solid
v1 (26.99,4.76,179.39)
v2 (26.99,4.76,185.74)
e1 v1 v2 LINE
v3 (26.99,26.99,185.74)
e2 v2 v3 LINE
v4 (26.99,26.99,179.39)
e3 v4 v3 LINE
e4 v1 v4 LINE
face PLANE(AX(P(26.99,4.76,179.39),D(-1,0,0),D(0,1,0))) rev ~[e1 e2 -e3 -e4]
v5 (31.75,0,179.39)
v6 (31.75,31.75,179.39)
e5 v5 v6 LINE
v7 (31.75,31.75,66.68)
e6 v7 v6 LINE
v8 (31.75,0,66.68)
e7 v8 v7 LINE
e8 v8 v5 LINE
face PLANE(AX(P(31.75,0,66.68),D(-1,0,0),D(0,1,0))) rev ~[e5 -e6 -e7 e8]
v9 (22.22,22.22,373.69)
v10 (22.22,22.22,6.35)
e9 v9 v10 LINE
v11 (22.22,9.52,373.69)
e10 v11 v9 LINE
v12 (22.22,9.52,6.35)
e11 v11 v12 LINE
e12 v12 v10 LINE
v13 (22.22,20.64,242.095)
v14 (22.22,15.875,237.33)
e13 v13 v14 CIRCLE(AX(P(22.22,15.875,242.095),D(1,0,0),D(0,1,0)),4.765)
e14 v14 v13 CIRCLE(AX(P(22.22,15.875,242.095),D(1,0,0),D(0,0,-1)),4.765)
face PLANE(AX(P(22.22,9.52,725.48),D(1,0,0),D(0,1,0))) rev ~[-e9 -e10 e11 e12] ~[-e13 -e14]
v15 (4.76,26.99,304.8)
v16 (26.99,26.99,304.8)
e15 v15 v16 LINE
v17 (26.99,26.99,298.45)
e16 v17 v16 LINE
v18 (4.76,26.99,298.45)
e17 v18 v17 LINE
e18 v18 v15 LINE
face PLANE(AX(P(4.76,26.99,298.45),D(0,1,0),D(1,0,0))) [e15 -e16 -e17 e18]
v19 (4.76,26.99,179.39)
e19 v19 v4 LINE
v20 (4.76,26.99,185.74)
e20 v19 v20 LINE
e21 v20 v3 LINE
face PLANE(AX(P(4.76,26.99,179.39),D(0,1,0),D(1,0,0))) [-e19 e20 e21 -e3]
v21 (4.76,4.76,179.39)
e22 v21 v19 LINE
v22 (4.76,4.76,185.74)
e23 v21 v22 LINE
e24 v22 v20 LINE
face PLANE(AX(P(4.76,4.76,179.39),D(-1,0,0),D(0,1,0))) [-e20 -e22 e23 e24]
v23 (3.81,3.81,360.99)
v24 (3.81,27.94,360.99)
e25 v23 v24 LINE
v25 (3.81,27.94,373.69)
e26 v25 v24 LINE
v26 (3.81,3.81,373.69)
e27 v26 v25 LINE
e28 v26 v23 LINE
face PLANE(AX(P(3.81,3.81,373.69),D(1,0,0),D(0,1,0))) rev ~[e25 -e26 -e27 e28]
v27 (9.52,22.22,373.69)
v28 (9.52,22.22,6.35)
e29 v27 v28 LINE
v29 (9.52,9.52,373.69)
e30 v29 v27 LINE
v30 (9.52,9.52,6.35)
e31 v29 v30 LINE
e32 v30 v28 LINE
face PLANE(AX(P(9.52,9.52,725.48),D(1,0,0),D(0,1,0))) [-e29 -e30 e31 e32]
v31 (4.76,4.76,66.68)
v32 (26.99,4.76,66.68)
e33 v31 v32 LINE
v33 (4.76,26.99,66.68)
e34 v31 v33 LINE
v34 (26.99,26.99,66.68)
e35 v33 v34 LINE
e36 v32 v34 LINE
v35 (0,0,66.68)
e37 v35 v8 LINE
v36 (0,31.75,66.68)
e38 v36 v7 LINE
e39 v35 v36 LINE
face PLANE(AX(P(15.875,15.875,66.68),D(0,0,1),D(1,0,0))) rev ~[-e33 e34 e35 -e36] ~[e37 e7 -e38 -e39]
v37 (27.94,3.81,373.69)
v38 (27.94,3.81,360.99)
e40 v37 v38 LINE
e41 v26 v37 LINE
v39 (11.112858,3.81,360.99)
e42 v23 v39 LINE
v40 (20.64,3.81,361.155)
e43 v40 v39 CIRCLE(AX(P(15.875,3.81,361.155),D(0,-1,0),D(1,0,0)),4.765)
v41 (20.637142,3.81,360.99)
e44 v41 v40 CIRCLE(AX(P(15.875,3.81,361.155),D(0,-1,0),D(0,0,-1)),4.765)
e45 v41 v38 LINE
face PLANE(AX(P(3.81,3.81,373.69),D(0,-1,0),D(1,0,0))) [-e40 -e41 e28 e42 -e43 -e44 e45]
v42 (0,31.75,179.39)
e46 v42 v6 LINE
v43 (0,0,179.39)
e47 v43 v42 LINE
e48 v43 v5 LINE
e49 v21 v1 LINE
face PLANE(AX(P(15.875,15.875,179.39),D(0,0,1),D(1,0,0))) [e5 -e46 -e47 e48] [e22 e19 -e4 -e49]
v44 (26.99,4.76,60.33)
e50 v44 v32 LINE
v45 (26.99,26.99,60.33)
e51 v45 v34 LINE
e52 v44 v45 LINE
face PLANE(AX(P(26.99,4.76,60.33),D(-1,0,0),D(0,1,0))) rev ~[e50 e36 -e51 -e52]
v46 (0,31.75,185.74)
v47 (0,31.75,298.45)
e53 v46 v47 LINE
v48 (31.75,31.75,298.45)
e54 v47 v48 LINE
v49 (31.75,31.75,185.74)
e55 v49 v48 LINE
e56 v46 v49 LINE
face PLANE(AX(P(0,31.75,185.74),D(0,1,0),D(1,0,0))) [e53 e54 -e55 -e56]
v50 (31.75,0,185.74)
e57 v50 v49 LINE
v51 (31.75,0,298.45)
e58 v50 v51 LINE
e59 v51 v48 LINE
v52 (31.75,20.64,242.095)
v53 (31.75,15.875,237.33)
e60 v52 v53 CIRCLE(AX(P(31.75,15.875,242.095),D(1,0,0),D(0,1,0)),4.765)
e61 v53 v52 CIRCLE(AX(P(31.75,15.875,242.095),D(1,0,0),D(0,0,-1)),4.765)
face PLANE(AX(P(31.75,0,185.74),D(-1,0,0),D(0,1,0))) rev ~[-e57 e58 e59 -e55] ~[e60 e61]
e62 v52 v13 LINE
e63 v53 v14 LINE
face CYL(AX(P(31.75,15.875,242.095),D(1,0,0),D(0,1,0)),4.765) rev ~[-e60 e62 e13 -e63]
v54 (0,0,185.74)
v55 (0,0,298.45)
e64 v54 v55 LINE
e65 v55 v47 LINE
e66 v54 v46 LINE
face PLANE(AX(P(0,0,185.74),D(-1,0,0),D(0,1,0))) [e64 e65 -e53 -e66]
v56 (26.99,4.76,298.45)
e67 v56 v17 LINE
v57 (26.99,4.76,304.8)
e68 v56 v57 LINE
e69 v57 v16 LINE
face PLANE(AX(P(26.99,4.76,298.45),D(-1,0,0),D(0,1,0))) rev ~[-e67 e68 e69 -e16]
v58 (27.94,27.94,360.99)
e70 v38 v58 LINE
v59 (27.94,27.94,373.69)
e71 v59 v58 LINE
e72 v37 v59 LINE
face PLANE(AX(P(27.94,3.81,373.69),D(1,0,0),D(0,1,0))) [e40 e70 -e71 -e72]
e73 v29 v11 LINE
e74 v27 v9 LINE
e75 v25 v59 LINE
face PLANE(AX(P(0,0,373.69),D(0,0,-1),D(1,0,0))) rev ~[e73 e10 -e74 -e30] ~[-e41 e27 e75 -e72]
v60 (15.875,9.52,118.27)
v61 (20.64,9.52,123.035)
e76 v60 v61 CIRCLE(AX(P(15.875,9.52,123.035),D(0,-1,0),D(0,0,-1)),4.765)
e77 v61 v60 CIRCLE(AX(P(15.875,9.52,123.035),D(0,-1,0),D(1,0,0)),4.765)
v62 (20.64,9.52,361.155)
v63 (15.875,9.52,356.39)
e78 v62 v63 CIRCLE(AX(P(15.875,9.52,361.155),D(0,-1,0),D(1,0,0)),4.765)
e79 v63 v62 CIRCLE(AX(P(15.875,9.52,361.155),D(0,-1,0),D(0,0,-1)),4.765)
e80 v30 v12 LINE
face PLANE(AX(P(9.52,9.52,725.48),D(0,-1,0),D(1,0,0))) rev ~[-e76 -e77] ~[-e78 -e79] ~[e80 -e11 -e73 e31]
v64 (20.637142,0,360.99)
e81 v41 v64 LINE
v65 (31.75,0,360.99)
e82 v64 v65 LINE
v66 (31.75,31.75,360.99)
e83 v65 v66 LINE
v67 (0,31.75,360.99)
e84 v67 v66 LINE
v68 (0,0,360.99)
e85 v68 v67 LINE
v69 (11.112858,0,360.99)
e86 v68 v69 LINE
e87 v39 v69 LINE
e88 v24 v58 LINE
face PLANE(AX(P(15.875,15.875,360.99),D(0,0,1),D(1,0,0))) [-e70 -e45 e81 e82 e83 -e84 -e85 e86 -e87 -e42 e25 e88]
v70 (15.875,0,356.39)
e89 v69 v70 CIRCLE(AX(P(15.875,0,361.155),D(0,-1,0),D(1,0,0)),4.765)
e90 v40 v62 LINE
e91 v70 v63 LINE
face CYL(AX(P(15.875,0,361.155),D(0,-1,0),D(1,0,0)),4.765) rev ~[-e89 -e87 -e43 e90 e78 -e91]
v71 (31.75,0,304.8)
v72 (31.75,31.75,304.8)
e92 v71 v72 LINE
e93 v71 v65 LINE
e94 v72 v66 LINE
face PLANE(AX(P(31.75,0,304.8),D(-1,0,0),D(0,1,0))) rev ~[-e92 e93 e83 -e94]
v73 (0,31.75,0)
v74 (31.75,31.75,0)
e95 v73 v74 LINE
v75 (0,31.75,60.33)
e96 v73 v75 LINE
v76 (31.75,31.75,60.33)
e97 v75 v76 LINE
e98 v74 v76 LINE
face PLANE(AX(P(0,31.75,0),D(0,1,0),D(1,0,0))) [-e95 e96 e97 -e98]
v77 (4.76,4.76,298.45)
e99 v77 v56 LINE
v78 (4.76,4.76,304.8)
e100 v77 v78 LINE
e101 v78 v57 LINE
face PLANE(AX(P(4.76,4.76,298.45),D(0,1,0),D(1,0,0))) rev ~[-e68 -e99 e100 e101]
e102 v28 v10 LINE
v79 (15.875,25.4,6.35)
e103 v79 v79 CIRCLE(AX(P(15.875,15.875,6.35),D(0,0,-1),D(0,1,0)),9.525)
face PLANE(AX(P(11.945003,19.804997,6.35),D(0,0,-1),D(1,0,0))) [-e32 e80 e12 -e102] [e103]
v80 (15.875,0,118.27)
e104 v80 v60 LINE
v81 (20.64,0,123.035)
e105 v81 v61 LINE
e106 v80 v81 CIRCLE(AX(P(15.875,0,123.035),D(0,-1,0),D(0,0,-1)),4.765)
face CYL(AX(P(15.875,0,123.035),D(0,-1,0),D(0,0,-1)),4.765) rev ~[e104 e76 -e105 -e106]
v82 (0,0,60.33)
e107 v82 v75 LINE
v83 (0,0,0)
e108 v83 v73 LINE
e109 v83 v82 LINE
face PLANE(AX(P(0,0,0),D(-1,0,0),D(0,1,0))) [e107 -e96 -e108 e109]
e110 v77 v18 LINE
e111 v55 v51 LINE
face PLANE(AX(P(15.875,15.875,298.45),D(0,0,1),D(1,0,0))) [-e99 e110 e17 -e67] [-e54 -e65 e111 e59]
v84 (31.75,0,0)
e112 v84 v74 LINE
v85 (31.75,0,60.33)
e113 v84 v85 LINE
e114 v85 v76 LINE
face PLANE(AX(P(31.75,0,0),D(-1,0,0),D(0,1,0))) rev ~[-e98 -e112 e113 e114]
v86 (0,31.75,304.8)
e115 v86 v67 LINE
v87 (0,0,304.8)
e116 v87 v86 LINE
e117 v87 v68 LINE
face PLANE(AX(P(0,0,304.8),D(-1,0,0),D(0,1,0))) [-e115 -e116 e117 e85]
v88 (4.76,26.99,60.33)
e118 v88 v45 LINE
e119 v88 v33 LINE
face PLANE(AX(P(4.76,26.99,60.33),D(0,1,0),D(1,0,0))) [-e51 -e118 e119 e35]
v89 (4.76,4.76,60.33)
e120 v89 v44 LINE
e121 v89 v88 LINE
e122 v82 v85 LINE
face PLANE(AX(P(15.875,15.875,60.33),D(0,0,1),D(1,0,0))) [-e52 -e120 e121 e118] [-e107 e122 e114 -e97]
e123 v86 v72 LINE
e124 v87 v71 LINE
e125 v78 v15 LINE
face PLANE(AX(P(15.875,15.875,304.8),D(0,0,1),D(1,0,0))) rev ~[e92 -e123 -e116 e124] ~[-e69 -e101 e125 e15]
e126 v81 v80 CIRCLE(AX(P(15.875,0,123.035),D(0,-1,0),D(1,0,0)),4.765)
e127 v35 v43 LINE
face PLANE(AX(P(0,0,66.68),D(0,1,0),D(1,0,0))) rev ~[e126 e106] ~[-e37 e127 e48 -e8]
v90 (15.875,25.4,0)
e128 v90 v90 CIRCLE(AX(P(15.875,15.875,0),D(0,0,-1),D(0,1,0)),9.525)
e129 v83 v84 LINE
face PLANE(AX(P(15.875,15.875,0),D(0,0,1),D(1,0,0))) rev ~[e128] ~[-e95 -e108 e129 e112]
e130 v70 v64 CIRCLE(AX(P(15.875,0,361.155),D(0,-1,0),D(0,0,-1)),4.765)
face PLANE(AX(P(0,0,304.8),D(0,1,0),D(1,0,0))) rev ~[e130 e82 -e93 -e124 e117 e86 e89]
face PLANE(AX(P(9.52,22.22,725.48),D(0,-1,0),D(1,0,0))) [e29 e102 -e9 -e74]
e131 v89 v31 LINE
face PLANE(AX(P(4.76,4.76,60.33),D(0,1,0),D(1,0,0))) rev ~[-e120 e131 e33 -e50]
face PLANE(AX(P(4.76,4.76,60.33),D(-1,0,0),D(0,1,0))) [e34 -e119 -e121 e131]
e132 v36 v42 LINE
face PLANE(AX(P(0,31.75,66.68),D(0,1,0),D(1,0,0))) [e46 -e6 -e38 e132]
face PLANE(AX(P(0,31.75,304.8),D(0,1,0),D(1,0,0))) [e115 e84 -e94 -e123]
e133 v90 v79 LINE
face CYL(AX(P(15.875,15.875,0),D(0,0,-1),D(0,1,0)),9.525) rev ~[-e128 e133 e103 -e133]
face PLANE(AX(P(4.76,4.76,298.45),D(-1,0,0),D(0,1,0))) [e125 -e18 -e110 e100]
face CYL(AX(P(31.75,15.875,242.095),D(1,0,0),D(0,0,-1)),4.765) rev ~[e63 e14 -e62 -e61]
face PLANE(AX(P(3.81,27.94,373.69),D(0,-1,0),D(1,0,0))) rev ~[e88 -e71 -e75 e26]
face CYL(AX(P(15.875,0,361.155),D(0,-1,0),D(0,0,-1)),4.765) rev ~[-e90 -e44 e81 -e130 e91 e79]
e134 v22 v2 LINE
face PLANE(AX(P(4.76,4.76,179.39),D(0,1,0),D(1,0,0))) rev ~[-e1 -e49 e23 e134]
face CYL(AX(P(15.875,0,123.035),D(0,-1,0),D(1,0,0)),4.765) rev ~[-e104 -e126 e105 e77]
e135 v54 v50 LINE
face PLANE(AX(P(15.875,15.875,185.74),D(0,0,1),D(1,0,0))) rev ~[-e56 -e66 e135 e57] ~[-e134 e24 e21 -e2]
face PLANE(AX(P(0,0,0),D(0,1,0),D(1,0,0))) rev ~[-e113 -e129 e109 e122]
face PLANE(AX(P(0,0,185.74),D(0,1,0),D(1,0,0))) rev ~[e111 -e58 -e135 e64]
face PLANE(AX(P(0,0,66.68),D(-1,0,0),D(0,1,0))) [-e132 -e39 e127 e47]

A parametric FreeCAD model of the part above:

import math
import FreeCAD as App
import Part
import Sketcher

V = App.Vector
Q = App.Units.Quantity

doc = App.newDocument("Part")
body = doc.addObject("PartDesign::Body", "Body")

# Sketch on XY plane
sketch1 = body.newObject("Sketcher::SketchObject", "Sketch")
sketch1.AttachmentSupport = (doc.getObject("XY_Plane"), [""])
sketch1.MapMode = "FlatFace"
sketch1.addGeometry(Part.LineSegment(V(0, 32, 0), V(0, 0, 0)), False)
sketch1.addGeometry(Part.LineSegment(V(0, 0, 0), V(32, 0, 0)), False)
sketch1.addGeometry(Part.LineSegment(V(32, 0, 0), V(32, 32, 0)), False)
sketch1.addGeometry(Part.LineSegment(V(32, 32, 0), V(0, 32, 0)), False)
sketch1.addConstraint(Sketcher.Constraint("Coincident", 0, 2, 1, 1))
sketch1.addConstraint(Sketcher.Constraint("Coincident", 1, 2, 2, 1))
sketch1.addConstraint(Sketcher.Constraint("Coincident", 2, 2, 3, 1))
sketch1.addConstraint(Sketcher.Constraint("Coincident", 3, 2, 0, 1))
sketch1.addConstraint(Sketcher.Constraint("Vertical", 0))
sketch1.addConstraint(Sketcher.Constraint("Horizontal", 1))
sketch1.addConstraint(Sketcher.Constraint("Vertical", 2))
sketch1.addConstraint(Sketcher.Constraint("Horizontal", 3))
sketch1.addConstraint(Sketcher.Constraint("Coincident", 0, 2, -1, 1))
sketch1.addConstraint(Sketcher.Constraint("Equal", 3, 0))
sketch1.addConstraint(Sketcher.Constraint("DistanceX", 1, 1, 1, 2, Q("1.25 in")))
pad1 = body.newObject("PartDesign::Pad", "Pad")
pad1.Profile = sketch1
pad1.Length = 60.33

# Sketch on XY plane
sketch2 = body.newObject("Sketcher::SketchObject", "Sketch001")
sketch2.AttachmentSupport = (doc.getObject("XY_Plane"), [""])
sketch2.MapMode = "FlatFace"
sketch2.AttachmentOffset = App.Placement(V(0, 0, 60.33), App.Rotation())
sketch2.addGeometry(Part.LineSegment(V(5, 27, 0), V(5, 5, 0)), False)
sketch2.addGeometry(Part.LineSegment(V(5, 5, 0), V(27, 5, 0)), False)
sketch2.addGeometry(Part.LineSegment(V(27, 5, 0), V(27, 27, 0)), False)
sketch2.addGeometry(Part.LineSegment(V(27, 27, 0), V(5, 27, 0)), False)
sketch2.addConstraint(Sketcher.Constraint("Coincident", 0, 2, 1, 1))
sketch2.addConstraint(Sketcher.Constraint("Coincident", 1, 2, 2, 1))
sketch2.addConstraint(Sketcher.Constraint("Coincident", 2, 2, 3, 1))
sketch2.addConstraint(Sketcher.Constraint("Coincident", 3, 2, 0, 1))
sketch2.addConstraint(Sketcher.Constraint("Vertical", 0))
sketch2.addConstraint(Sketcher.Constraint("Horizontal", 1))
sketch2.addConstraint(Sketcher.Constraint("Vertical", 2))
sketch2.addConstraint(Sketcher.Constraint("Horizontal", 3))
sketch2.addConstraint(Sketcher.Constraint("Equal", 3, 0))
sketch2.addConstraint(Sketcher.Constraint("DistanceX", 1, 1, 1, 2, Q("22.23 mm")))
sketch2.addConstraint(Sketcher.Constraint("DistanceX", -1, 1, 0, 2, Q("4.76 mm")))
sketch2.addConstraint(Sketcher.Constraint("DistanceY", -1, 1, 0, 2, Q("4.76 mm")))
pad2 = body.newObject("PartDesign::Pad", "Pad001")
pad2.Profile = sketch2
pad2.Length = Q("0.25 in")

# Sketch on XY plane
sketch3 = body.newObject("Sketcher::SketchObject", "Sketch002")
sketch3.AttachmentSupport = (doc.getObject("XY_Plane"), [""])
sketch3.MapMode = "FlatFace"
sketch3.AttachmentOffset = App.Placement(V(0, 0, 66.68), App.Rotation())
sketch3.addGeometry(Part.LineSegment(V(0, 32, 0), V(0, 0, 0)), False)
sketch3.addGeometry(Part.LineSegment(V(0, 0, 0), V(32, 0, 0)), False)
sketch3.addGeometry(Part.LineSegment(V(32, 0, 0), V(32, 32, 0)), False)
sketch3.addGeometry(Part.LineSegment(V(32, 32, 0), V(0, 32, 0)), False)
sketch3.addConstraint(Sketcher.Constraint("Coincident", 0, 2, 1, 1))
sketch3.addConstraint(Sketcher.Constraint("Coincident", 1, 2, 2, 1))
sketch3.addConstraint(Sketcher.Constraint("Coincident", 2, 2, 3, 1))
sketch3.addConstraint(Sketcher.Constraint("Coincident", 3, 2, 0, 1))
sketch3.addConstraint(Sketcher.Constraint("Vertical", 0))
sketch3.addConstraint(Sketcher.Constraint("Horizontal", 1))
sketch3.addConstraint(Sketcher.Constraint("Vertical", 2))
sketch3.addConstraint(Sketcher.Constraint("Horizontal", 3))
sketch3.addConstraint(Sketcher.Constraint("Coincident", 0, 2, -1, 1))
sketch3.addConstraint(Sketcher.Constraint("Equal", 3, 0))
sketch3.addConstraint(Sketcher.Constraint("DistanceX", 1, 1, 1, 2, Q("1.25 in")))
pad3 = body.newObject("PartDesign::Pad", "Pad002")
pad3.Profile = sketch3
pad3.Length = 112.71

# Sketch on XY plane
sketch4 = body.newObject("Sketcher::SketchObject", "Sketch003")
sketch4.AttachmentSupport = (doc.getObject("XY_Plane"), [""])
sketch4.MapMode = "FlatFace"
sketch4.AttachmentOffset = App.Placement(V(0, 0, 179.39), App.Rotation())
sketch4.addGeometry(Part.LineSegment(V(5, 27, 0), V(5, 5, 0)), False)
sketch4.addGeometry(Part.LineSegment(V(5, 5, 0), V(27, 5, 0)), False)
sketch4.addGeometry(Part.LineSegment(V(27, 5, 0), V(27, 27, 0)), False)
sketch4.addGeometry(Part.LineSegment(V(27, 27, 0), V(5, 27, 0)), False)
sketch4.addConstraint(Sketcher.Constraint("Coincident", 0, 2, 1, 1))
sketch4.addConstraint(Sketcher.Constraint("Coincident", 1, 2, 2, 1))
sketch4.addConstraint(Sketcher.Constraint("Coincident", 2, 2, 3, 1))
sketch4.addConstraint(Sketcher.Constraint("Coincident", 3, 2, 0, 1))
sketch4.addConstraint(Sketcher.Constraint("Vertical", 0))
sketch4.addConstraint(Sketcher.Constraint("Horizontal", 1))
sketch4.addConstraint(Sketcher.Constraint("Vertical", 2))
sketch4.addConstraint(Sketcher.Constraint("Horizontal", 3))
sketch4.addConstraint(Sketcher.Constraint("Equal", 3, 0))
sketch4.addConstraint(Sketcher.Constraint("DistanceX", 1, 1, 1, 2, Q("22.23 mm")))
sketch4.addConstraint(Sketcher.Constraint("DistanceX", -1, 1, 0, 2, Q("4.76 mm")))
sketch4.addConstraint(Sketcher.Constraint("DistanceY", -1, 1, 0, 2, Q("4.76 mm")))
pad4 = body.newObject("PartDesign::Pad", "Pad003")
pad4.Profile = sketch4
pad4.Length = Q("0.25 in")

# Sketch on XY plane
sketch5 = body.newObject("Sketcher::SketchObject", "Sketch004")
sketch5.AttachmentSupport = (doc.getObject("XY_Plane"), [""])
sketch5.MapMode = "FlatFace"
sketch5.AttachmentOffset = App.Placement(V(0, 0, 185.74), App.Rotation())
sketch5.addGeometry(Part.LineSegment(V(0, 32, 0), V(0, 0, 0)), False)
sketch5.addGeometry(Part.LineSegment(V(0, 0, 0), V(32, 0, 0)), False)
sketch5.addGeometry(Part.LineSegment(V(32, 0, 0), V(32, 32, 0)), False)
sketch5.addGeometry(Part.LineSegment(V(32, 32, 0), V(0, 32, 0)), False)
sketch5.addConstraint(Sketcher.Constraint("Coincident", 0, 2, 1, 1))
sketch5.addConstraint(Sketcher.Constraint("Coincident", 1, 2, 2, 1))
sketch5.addConstraint(Sketcher.Constraint("Coincident", 2, 2, 3, 1))
sketch5.addConstraint(Sketcher.Constraint("Coincident", 3, 2, 0, 1))
sketch5.addConstraint(Sketcher.Constraint("Vertical", 0))
sketch5.addConstraint(Sketcher.Constraint("Horizontal", 1))
sketch5.addConstraint(Sketcher.Constraint("Vertical", 2))
sketch5.addConstraint(Sketcher.Constraint("Horizontal", 3))
sketch5.addConstraint(Sketcher.Constraint("Coincident", 0, 2, -1, 1))
sketch5.addConstraint(Sketcher.Constraint("Equal", 3, 0))
sketch5.addConstraint(Sketcher.Constraint("DistanceX", 1, 1, 1, 2, Q("1.25 in")))
pad5 = body.newObject("PartDesign::Pad", "Pad004")
pad5.Profile = sketch5
pad5.Length = 112.71

# Sketch on XY plane
sketch6 = body.newObject("Sketcher::SketchObject", "Sketch005")
sketch6.AttachmentSupport = (doc.getObject("XY_Plane"), [""])
sketch6.MapMode = "FlatFace"
sketch6.AttachmentOffset = App.Placement(V(0, 0, 11.75 * 25.4), App.Rotation())
sketch6.addGeometry(Part.LineSegment(V(5, 27, 0), V(5, 5, 0)), False)
sketch6.addGeometry(Part.LineSegment(V(5, 5, 0), V(27, 5, 0)), False)
sketch6.addGeometry(Part.LineSegment(V(27, 5, 0), V(27, 27, 0)), False)
sketch6.addGeometry(Part.LineSegment(V(27, 27, 0), V(5, 27, 0)), False)
sketch6.addConstraint(Sketcher.Constraint("Coincident", 0, 2, 1, 1))
sketch6.addConstraint(Sketcher.Constraint("Coincident", 1, 2, 2, 1))
sketch6.addConstraint(Sketcher.Constraint("Coincident", 2, 2, 3, 1))
sketch6.addConstraint(Sketcher.Constraint("Coincident", 3, 2, 0, 1))
sketch6.addConstraint(Sketcher.Constraint("Vertical", 0))
sketch6.addConstraint(Sketcher.Constraint("Horizontal", 1))
sketch6.addConstraint(Sketcher.Constraint("Vertical", 2))
sketch6.addConstraint(Sketcher.Constraint("Horizontal", 3))
sketch6.addConstraint(Sketcher.Constraint("Equal", 3, 0))
sketch6.addConstraint(Sketcher.Constraint("DistanceX", 1, 1, 1, 2, Q("22.23 mm")))
sketch6.addConstraint(Sketcher.Constraint("DistanceX", -1, 1, 0, 2, Q("4.76 mm")))
sketch6.addConstraint(Sketcher.Constraint("DistanceY", -1, 1, 0, 2, Q("4.76 mm")))
pad6 = body.newObject("PartDesign::Pad", "Pad005")
pad6.Profile = sketch6
pad6.Length = Q("0.25 in")

# Sketch on XY plane
sketch7 = body.newObject("Sketcher::SketchObject", "Sketch006")
sketch7.AttachmentSupport = (doc.getObject("XY_Plane"), [""])
sketch7.MapMode = "FlatFace"
sketch7.AttachmentOffset = App.Placement(V(0, 0, 12 * 25.4), App.Rotation())
sketch7.addGeometry(Part.LineSegment(V(0, 32, 0), V(0, 0, 0)), False)
sketch7.addGeometry(Part.LineSegment(V(0, 0, 0), V(32, 0, 0)), False)
sketch7.addGeometry(Part.LineSegment(V(32, 0, 0), V(32, 32, 0)), False)
sketch7.addGeometry(Part.LineSegment(V(32, 32, 0), V(0, 32, 0)), False)
sketch7.addConstraint(Sketcher.Constraint("Coincident", 0, 2, 1, 1))
sketch7.addConstraint(Sketcher.Constraint("Coincident", 1, 2, 2, 1))
sketch7.addConstraint(Sketcher.Constraint("Coincident", 2, 2, 3, 1))
sketch7.addConstraint(Sketcher.Constraint("Coincident", 3, 2, 0, 1))
sketch7.addConstraint(Sketcher.Constraint("Vertical", 0))
sketch7.addConstraint(Sketcher.Constraint("Horizontal", 1))
sketch7.addConstraint(Sketcher.Constraint("Vertical", 2))
sketch7.addConstraint(Sketcher.Constraint("Horizontal", 3))
sketch7.addConstraint(Sketcher.Constraint("Coincident", 0, 2, -1, 1))
sketch7.addConstraint(Sketcher.Constraint("Equal", 3, 0))
sketch7.addConstraint(Sketcher.Constraint("DistanceX", 1, 1, 1, 2, Q("1.25 in")))
pad7 = body.newObject("PartDesign::Pad", "Pad006")
pad7.Profile = sketch7
pad7.Length = 112.71

# Sketch on XY plane
sketch8 = body.newObject("Sketcher::SketchObject", "Sketch007")
sketch8.AttachmentSupport = (doc.getObject("XY_Plane"), [""])
sketch8.MapMode = "FlatFace"
sketch8.AttachmentOffset = App.Placement(V(0, 0, 417.51), App.Rotation())
sketch8.addGeometry(Part.LineSegment(V(5, 27, 0), V(5, 5, 0)), False)
sketch8.addGeometry(Part.LineSegment(V(5, 5, 0), V(27, 5, 0)), False)
sketch8.addGeometry(Part.LineSegment(V(27, 5, 0), V(27, 27, 0)), False)
sketch8.addGeometry(Part.LineSegment(V(27, 27, 0), V(5, 27, 0)), False)
sketch8.addConstraint(Sketcher.Constraint("Coincident", 0, 2, 1, 1))
sketch8.addConstraint(Sketcher.Constraint("Coincident", 1, 2, 2, 1))
sketch8.addConstraint(Sketcher.Constraint("Coincident", 2, 2, 3, 1))
sketch8.addConstraint(Sketcher.Constraint("Coincident", 3, 2, 0, 1))
sketch8.addConstraint(Sketcher.Constraint("Vertical", 0))
sketch8.addConstraint(Sketcher.Constraint("Horizontal", 1))
sketch8.addConstraint(Sketcher.Constraint("Vertical", 2))
sketch8.addConstraint(Sketcher.Constraint("Horizontal", 3))
sketch8.addConstraint(Sketcher.Constraint("Equal", 3, 0))
sketch8.addConstraint(Sketcher.Constraint("DistanceX", 1, 1, 1, 2, Q("22.23 mm")))
sketch8.addConstraint(Sketcher.Constraint("DistanceX", -1, 1, 0, 2, Q("4.76 mm")))
sketch8.addConstraint(Sketcher.Constraint("DistanceY", -1, 1, 0, 2, Q("4.76 mm")))
pad8 = body.newObject("PartDesign::Pad", "Pad007")
pad8.Profile = sketch8
pad8.Length = Q("0.25 in")

# Sketch on XY plane
sketch9 = body.newObject("Sketcher::SketchObject", "Sketch008")
sketch9.AttachmentSupport = (doc.getObject("XY_Plane"), [""])
sketch9.MapMode = "FlatFace"
sketch9.AttachmentOffset = App.Placement(V(0, 0, 423.86), App.Rotation())
sketch9.addGeometry(Part.LineSegment(V(0, 32, 0), V(0, 0, 0)), False)
sketch9.addGeometry(Part.LineSegment(V(0, 0, 0), V(32, 0, 0)), False)
sketch9.addGeometry(Part.LineSegment(V(32, 0, 0), V(32, 32, 0)), False)
sketch9.addGeometry(Part.LineSegment(V(32, 32, 0), V(0, 32, 0)), False)
sketch9.addConstraint(Sketcher.Constraint("Coincident", 0, 2, 1, 1))
sketch9.addConstraint(Sketcher.Constraint("Coincident", 1, 2, 2, 1))
sketch9.addConstraint(Sketcher.Constraint("Coincident", 2, 2, 3, 1))
sketch9.addConstraint(Sketcher.Constraint("Coincident", 3, 2, 0, 1))
sketch9.addConstraint(Sketcher.Constraint("Vertical", 0))
sketch9.addConstraint(Sketcher.Constraint("Horizontal", 1))
sketch9.addConstraint(Sketcher.Constraint("Vertical", 2))
sketch9.addConstraint(Sketcher.Constraint("Horizontal", 3))
sketch9.addConstraint(Sketcher.Constraint("Coincident", 0, 2, -1, 1))
sketch9.addConstraint(Sketcher.Constraint("Equal", 3, 0))
sketch9.addConstraint(Sketcher.Constraint("DistanceX", 1, 1, 1, 2, Q("1.25 in")))
pad9 = body.newObject("PartDesign::Pad", "Pad008")
pad9.Profile = sketch9
pad9.Length = 112.71

# Sketch on XY plane
sketch10 = body.newObject("Sketcher::SketchObject", "Sketch009")
sketch10.AttachmentSupport = (doc.getObject("XY_Plane"), [""])
sketch10.MapMode = "FlatFace"
sketch10.AttachmentOffset = App.Placement(V(0, 0, 536.57), App.Rotation())
sketch10.addGeometry(Part.LineSegment(V(5, 27, 0), V(5, 5, 0)), False)
sketch10.addGeometry(Part.LineSegment(V(5, 5, 0), V(27, 5, 0)), False)
sketch10.addGeometry(Part.LineSegment(V(27, 5, 0), V(27, 27, 0)), False)
sketch10.addGeometry(Part.LineSegment(V(27, 27, 0), V(5, 27, 0)), False)
sketch10.addConstraint(Sketcher.Constraint("Coincident", 0, 2, 1, 1))
sketch10.addConstraint(Sketcher.Constraint("Coincident", 1, 2, 2, 1))
sketch10.addConstraint(Sketcher.Constraint("Coincident", 2, 2, 3, 1))
sketch10.addConstraint(Sketcher.Constraint("Coincident", 3, 2, 0, 1))
sketch10.addConstraint(Sketcher.Constraint("Vertical", 0))
sketch10.addConstraint(Sketcher.Constraint("Horizontal", 1))
sketch10.addConstraint(Sketcher.Constraint("Vertical", 2))
sketch10.addConstraint(Sketcher.Constraint("Horizontal", 3))
sketch10.addConstraint(Sketcher.Constraint("Equal", 3, 0))
sketch10.addConstraint(Sketcher.Constraint("DistanceX", 1, 1, 1, 2, Q("22.23 mm")))
sketch10.addConstraint(Sketcher.Constraint("DistanceX", -1, 1, 0, 2, Q("4.76 mm")))
sketch10.addConstraint(Sketcher.Constraint("DistanceY", -1, 1, 0, 2, Q("4.76 mm")))
pad10 = body.newObject("PartDesign::Pad", "Pad009")
pad10.Profile = sketch10
pad10.Length = Q("0.25 in")

# Sketch on XY plane
sketch11 = body.newObject("Sketcher::SketchObject", "Sketch010")
sketch11.AttachmentSupport = (doc.getObject("XY_Plane"), [""])
sketch11.MapMode = "FlatFace"
sketch11.AttachmentOffset = App.Placement(V(0, 0, 542.92), App.Rotation())
sketch11.addGeometry(Part.LineSegment(V(0, 32, 0), V(0, 0, 0)), False)
sketch11.addGeometry(Part.LineSegment(V(0, 0, 0), V(32, 0, 0)), False)
sketch11.addGeometry(Part.LineSegment(V(32, 0, 0), V(32, 32, 0)), False)
sketch11.addGeometry(Part.LineSegment(V(32, 32, 0), V(0, 32, 0)), False)
sketch11.addConstraint(Sketcher.Constraint("Coincident", 0, 2, 1, 1))
sketch11.addConstraint(Sketcher.Constraint("Coincident", 1, 2, 2, 1))
sketch11.addConstraint(Sketcher.Constraint("Coincident", 2, 2, 3, 1))
sketch11.addConstraint(Sketcher.Constraint("Coincident", 3, 2, 0, 1))
sketch11.addConstraint(Sketcher.Constraint("Vertical", 0))
sketch11.addConstraint(Sketcher.Constraint("Horizontal", 1))
sketch11.addConstraint(Sketcher.Constraint("Vertical", 2))
sketch11.addConstraint(Sketcher.Constraint("Horizontal", 3))
sketch11.addConstraint(Sketcher.Constraint("Coincident", 0, 2, -1, 1))
sketch11.addConstraint(Sketcher.Constraint("Equal", 3, 0))
sketch11.addConstraint(Sketcher.Constraint("DistanceX", 1, 1, 1, 2, Q("1.25 in")))
pad11 = body.newObject("PartDesign::Pad", "Pad010")
pad11.Profile = sketch11
pad11.Length = 112.71

# Sketch on XY plane
sketch12 = body.newObject("Sketcher::SketchObject", "Sketch011")
sketch12.AttachmentSupport = (doc.getObject("XY_Plane"), [""])
sketch12.MapMode = "FlatFace"
sketch12.AttachmentOffset = App.Placement(V(0, 0, 655.63), App.Rotation())
sketch12.addGeometry(Part.LineSegment(V(5, 27, 0), V(5, 5, 0)), False)
sketch12.addGeometry(Part.LineSegment(V(5, 5, 0), V(27, 5, 0)), False)
sketch12.addGeometry(Part.LineSegment(V(27, 5, 0), V(27, 27, 0)), False)
sketch12.addGeometry(Part.LineSegment(V(27, 27, 0), V(5, 27, 0)), False)
sketch12.addConstraint(Sketcher.Constraint("Coincident", 0, 2, 1, 1))
sketch12.addConstraint(Sketcher.Constraint("Coincident", 1, 2, 2, 1))
sketch12.addConstraint(Sketcher.Constraint("Coincident", 2, 2, 3, 1))
sketch12.addConstraint(Sketcher.Constraint("Coincident", 3, 2, 0, 1))
sketch12.addConstraint(Sketcher.Constraint("Vertical", 0))
sketch12.addConstraint(Sketcher.Constraint("Horizontal", 1))
sketch12.addConstraint(Sketcher.Constraint("Vertical", 2))
sketch12.addConstraint(Sketcher.Constraint("Horizontal", 3))
sketch12.addConstraint(Sketcher.Constraint("Equal", 3, 0))
sketch12.addConstraint(Sketcher.Constraint("DistanceX", 1, 1, 1, 2, Q("22.23 mm")))
sketch12.addConstraint(Sketcher.Constraint("DistanceX", -1, 1, 0, 2, Q("4.76 mm")))
sketch12.addConstraint(Sketcher.Constraint("DistanceY", -1, 1, 0, 2, Q("4.76 mm")))
pad12 = body.newObject("PartDesign::Pad", "Pad011")
pad12.Profile = sketch12
pad12.Length = Q("0.25 in")

# Sketch on XY plane
sketch13 = body.newObject("Sketcher::SketchObject", "Sketch012")
sketch13.AttachmentSupport = (doc.getObject("XY_Plane"), [""])
sketch13.MapMode = "FlatFace"
sketch13.AttachmentOffset = App.Placement(V(0, 0, 661.98), App.Rotation())
sketch13.addGeometry(Part.LineSegment(V(0, 32, 0), V(0, 0, 0)), False)
sketch13.addGeometry(Part.LineSegment(V(0, 0, 0), V(32, 0, 0)), False)
sketch13.addGeometry(Part.LineSegment(V(32, 0, 0), V(32, 32, 0)), False)
sketch13.addGeometry(Part.LineSegment(V(32, 32, 0), V(0, 32, 0)), False)
sketch13.addConstraint(Sketcher.Constraint("Coincident", 0, 2, 1, 1))
sketch13.addConstraint(Sketcher.Constraint("Coincident", 1, 2, 2, 1))
sketch13.addConstraint(Sketcher.Constraint("Coincident", 2, 2, 3, 1))
sketch13.addConstraint(Sketcher.Constraint("Coincident", 3, 2, 0, 1))
sketch13.addConstraint(Sketcher.Constraint("Vertical", 0))
sketch13.addConstraint(Sketcher.Constraint("Horizontal", 1))
sketch13.addConstraint(Sketcher.Constraint("Vertical", 2))
sketch13.addConstraint(Sketcher.Constraint("Horizontal", 3))
sketch13.addConstraint(Sketcher.Constraint("Coincident", 0, 2, -1, 1))
sketch13.addConstraint(Sketcher.Constraint("Equal", 3, 0))
sketch13.addConstraint(Sketcher.Constraint("DistanceX", 1, 1, 1, 2, Q("1.25 in")))
pad13 = body.newObject("PartDesign::Pad", "Pad012")
pad13.Profile = sketch13
pad13.Length = Q("1 in")

# Sketch on XY plane
sketch14 = body.newObject("Sketcher::SketchObject", "Sketch013")
sketch14.AttachmentSupport = (doc.getObject("XY_Plane"), [""])
sketch14.MapMode = "FlatFace"
sketch14.AttachmentOffset = App.Placement(V(0, 0, 687.38), App.Rotation())
sketch14.addGeometry(Part.LineSegment(V(5, 27, 0), V(5, 5, 0)), False)
sketch14.addGeometry(Part.LineSegment(V(5, 5, 0), V(27, 5, 0)), False)
sketch14.addGeometry(Part.LineSegment(V(27, 5, 0), V(27, 27, 0)), False)
sketch14.addGeometry(Part.LineSegment(V(27, 27, 0), V(5, 27, 0)), False)
sketch14.addConstraint(Sketcher.Constraint("Coincident", 0, 2, 1, 1))
sketch14.addConstraint(Sketcher.Constraint("Coincident", 1, 2, 2, 1))
sketch14.addConstraint(Sketcher.Constraint("Coincident", 2, 2, 3, 1))
sketch14.addConstraint(Sketcher.Constraint("Coincident", 3, 2, 0, 1))
sketch14.addConstraint(Sketcher.Constraint("Vertical", 0))
sketch14.addConstraint(Sketcher.Constraint("Horizontal", 1))
sketch14.addConstraint(Sketcher.Constraint("Vertical", 2))
sketch14.addConstraint(Sketcher.Constraint("Horizontal", 3))
sketch14.addConstraint(Sketcher.Constraint("Equal", 3, 0))
sketch14.addConstraint(Sketcher.Constraint("DistanceX", 1, 1, 1, 2, Q("22.23 mm")))
sketch14.addConstraint(Sketcher.Constraint("DistanceX", -1, 1, 0, 2, Q("4.76 mm")))
sketch14.addConstraint(Sketcher.Constraint("DistanceY", -1, 1, 0, 2, Q("4.76 mm")))
pad14 = body.newObject("PartDesign::Pad", "Pad013")
pad14.Profile = sketch14
pad14.Length = Q("0.25 in")

# Sketch on XY plane
sketch15 = body.newObject("Sketcher::SketchObject", "Sketch014")
sketch15.AttachmentSupport = (doc.getObject("XY_Plane"), [""])
sketch15.MapMode = "FlatFace"
sketch15.AttachmentOffset = App.Placement(V(0, 0, 693.73), App.Rotation())
sketch15.addGeometry(Part.LineSegment(V(0, 32, 0), V(0, 0, 0)), False)
sketch15.addGeometry(Part.LineSegment(V(0, 0, 0), V(32, 0, 0)), False)
sketch15.addGeometry(Part.LineSegment(V(32, 0, 0), V(32, 32, 0)), False)
sketch15.addGeometry(Part.LineSegment(V(32, 32, 0), V(0, 32, 0)), False)
sketch15.addConstraint(Sketcher.Constraint("Coincident", 0, 2, 1, 1))
sketch15.addConstraint(Sketcher.Constraint("Coincident", 1, 2, 2, 1))
sketch15.addConstraint(Sketcher.Constraint("Coincident", 2, 2, 3, 1))
sketch15.addConstraint(Sketcher.Constraint("Coincident", 3, 2, 0, 1))
sketch15.addConstraint(Sketcher.Constraint("Vertical", 0))
sketch15.addConstraint(Sketcher.Constraint("Horizontal", 1))
sketch15.addConstraint(Sketcher.Constraint("Vertical", 2))
sketch15.addConstraint(Sketcher.Constraint("Horizontal", 3))
sketch15.addConstraint(Sketcher.Constraint("Coincident", 0, 2, -1, 1))
sketch15.addConstraint(Sketcher.Constraint("Equal", 3, 0))
sketch15.addConstraint(Sketcher.Constraint("DistanceX", 1, 1, 1, 2, Q("1.25 in")))
pad15 = body.newObject("PartDesign::Pad", "Pad014")
pad15.Profile = sketch15
pad15.Length = Q("1.25 in")

# Sketch on XZ plane
sketch16 = body.newObject("Sketcher::SketchObject", "Sketch015")
sketch16.AttachmentSupport = (doc.getObject("XZ_Plane"), [""])
sketch16.MapMode = "FlatFace"
sketch16.addGeometry(Part.ArcOfCircle(Part.Circle(V(15.9, 123, 0), V(0, 0, 1), 4.8), math.radians(0), math.radians(270)), False)
sketch16.addGeometry(Part.ArcOfCircle(Part.Circle(V(15.9, 123, 0), V(0, 0, 1), 4.8), math.radians(-90), math.radians(0)), False)
sketch16.addConstraint(Sketcher.Constraint("Tangent", 0, 1, 1, 2))
sketch16.addConstraint(Sketcher.Constraint("Coincident", 1, 1, 0, 2))
sketch16.addConstraint(Sketcher.Constraint("Horizontal", 1, 3, 0, 1))
sketch16.addConstraint(Sketcher.Constraint("Vertical", 0, 3, 1, 1))
sketch16.addConstraint(Sketcher.Constraint("Radius", 0, Q("4.765 mm")))
sketch16.addConstraint(Sketcher.Constraint("DistanceX", -1, 1, 0, 3, Q("0.625 in")))
sketch16.addConstraint(Sketcher.Constraint("DistanceY", -1, 1, 0, 3, Q("123.035 mm")))
pocket1 = body.newObject("PartDesign::Pocket", "Pocket")
pocket1.Profile = sketch16
pocket1.Length = Q("0.5 in")

# Sketch on YZ plane
sketch17 = body.newObject("Sketcher::SketchObject", "Sketch016")
sketch17.AttachmentSupport = (doc.getObject("YZ_Plane"), [""])
sketch17.MapMode = "FlatFace"
sketch17.AttachmentOffset = App.Placement(V(0, 0, 1.25 * 25.4), App.Rotation())
sketch17.addGeometry(Part.ArcOfCircle(Part.Circle(V(15.9, 242.1, 0), V(0, 0, 1), 4.8), math.radians(0), math.radians(270)), False)
sketch17.addGeometry(Part.ArcOfCircle(Part.Circle(V(15.9, 242.1, 0), V(0, 0, 1), 4.8), math.radians(-90), math.radians(0)), False)
sketch17.addConstraint(Sketcher.Constraint("Tangent", 0, 1, 1, 2))
sketch17.addConstraint(Sketcher.Constraint("Coincident", 1, 1, 0, 2))
sketch17.addConstraint(Sketcher.Constraint("Horizontal", 1, 3, 0, 1))
sketch17.addConstraint(Sketcher.Constraint("Vertical", 0, 3, 1, 1))
sketch17.addConstraint(Sketcher.Constraint("Radius", 0, Q("4.765 mm")))
sketch17.addConstraint(Sketcher.Constraint("DistanceX", -1, 1, 0, 3, Q("0.625 in")))
sketch17.addConstraint(Sketcher.Constraint("DistanceY", -1, 1, 0, 3, Q("242.095 mm")))
pocket2 = body.newObject("PartDesign::Pocket", "Pocket001")
pocket2.Profile = sketch17
pocket2.Length = Q("0.5 in")

# Sketch on XZ plane
sketch18 = body.newObject("Sketcher::SketchObject", "Sketch017")
sketch18.AttachmentSupport = (doc.getObject("XZ_Plane"), [""])
sketch18.MapMode = "FlatFace"
sketch18.addGeometry(Part.ArcOfCircle(Part.Circle(V(15.9, 361.2, 0), V(0, 0, 1), 4.8), math.radians(0), math.radians(270)), False)
sketch18.addGeometry(Part.ArcOfCircle(Part.Circle(V(15.9, 361.2, 0), V(0, 0, 1), 4.8), math.radians(-90), math.radians(0)), False)
sketch18.addConstraint(Sketcher.Constraint("Tangent", 0, 1, 1, 2))
sketch18.addConstraint(Sketcher.Constraint("Coincident", 1, 1, 0, 2))
sketch18.addConstraint(Sketcher.Constraint("Horizontal", 1, 3, 0, 1))
sketch18.addConstraint(Sketcher.Constraint("Vertical", 0, 3, 1, 1))
sketch18.addConstraint(Sketcher.Constraint("Radius", 0, Q("4.765 mm")))
sketch18.addConstraint(Sketcher.Constraint("DistanceX", -1, 1, 0, 3, Q("0.625 in")))
sketch18.addConstraint(Sketcher.Constraint("DistanceY", -1, 1, 0, 3, Q("361.155 mm")))
pocket3 = body.newObject("PartDesign::Pocket", "Pocket002")
pocket3.Profile = sketch18
pocket3.Length = Q("0.5 in")

# Sketch on YZ plane
sketch19 = body.newObject("Sketcher::SketchObject", "Sketch018")
sketch19.AttachmentSupport = (doc.getObject("YZ_Plane"), [""])
sketch19.MapMode = "FlatFace"
sketch19.AttachmentOffset = App.Placement(V(0, 0, 1.25 * 25.4), App.Rotation())
sketch19.addGeometry(Part.ArcOfCircle(Part.Circle(V(15.9, 480.2, 0), V(0, 0, 1), 4.8), math.radians(0), math.radians(270)), False)
sketch19.addGeometry(Part.ArcOfCircle(Part.Circle(V(15.9, 480.2, 0), V(0, 0, 1), 4.8), math.radians(-90), math.radians(0)), False)
sketch19.addConstraint(Sketcher.Constraint("Tangent", 0, 1, 1, 2))
sketch19.addConstraint(Sketcher.Constraint("Coincident", 1, 1, 0, 2))
sketch19.addConstraint(Sketcher.Constraint("Horizontal", 1, 3, 0, 1))
sketch19.addConstraint(Sketcher.Constraint("Vertical", 0, 3, 1, 1))
sketch19.addConstraint(Sketcher.Constraint("Radius", 0, Q("4.765 mm")))
sketch19.addConstraint(Sketcher.Constraint("DistanceX", -1, 1, 0, 3, Q("0.625 in")))
sketch19.addConstraint(Sketcher.Constraint("DistanceY", -1, 1, 0, 3, Q("480.215 mm")))
pocket4 = body.newObject("PartDesign::Pocket", "Pocket003")
pocket4.Profile = sketch19
pocket4.Length = Q("0.5 in")

# Sketch on XZ plane
sketch20 = body.newObject("Sketcher::SketchObject", "Sketch019")
sketch20.AttachmentSupport = (doc.getObject("XZ_Plane"), [""])
sketch20.MapMode = "FlatFace"
sketch20.addGeometry(Part.ArcOfCircle(Part.Circle(V(15.9, 599.3, 0), V(0, 0, 1), 4.8), math.radians(0), math.radians(270)), False)
sketch20.addGeometry(Part.ArcOfCircle(Part.Circle(V(15.9, 599.3, 0), V(0, 0, 1), 4.8), math.radians(-90), math.radians(0)), False)
sketch20.addConstraint(Sketcher.Constraint("Tangent", 0, 1, 1, 2))
sketch20.addConstraint(Sketcher.Constraint("Coincident", 1, 1, 0, 2))
sketch20.addConstraint(Sketcher.Constraint("Horizontal", 1, 3, 0, 1))
sketch20.addConstraint(Sketcher.Constraint("Vertical", 0, 3, 1, 1))
sketch20.addConstraint(Sketcher.Constraint("Radius", 0, Q("4.765 mm")))
sketch20.addConstraint(Sketcher.Constraint("DistanceX", -1, 1, 0, 3, Q("0.625 in")))
sketch20.addConstraint(Sketcher.Constraint("DistanceY", -1, 1, 0, 3, Q("599.275 mm")))
pocket5 = body.newObject("PartDesign::Pocket", "Pocket004")
pocket5.Profile = sketch20
pocket5.Length = Q("0.5 in")

# Sketch on XY plane
sketch21 = body.newObject("Sketcher::SketchObject", "Sketch020")
sketch21.AttachmentSupport = (doc.getObject("XY_Plane"), [""])
sketch21.MapMode = "FlatFace"
sketch21.AttachmentOffset = App.Placement(V(0, 0, 725.48), App.Rotation())
sketch21.addGeometry(Part.LineSegment(V(10, 22, 0), V(10, 10, 0)), False)
sketch21.addGeometry(Part.LineSegment(V(10, 10, 0), V(22, 10, 0)), False)
sketch21.addGeometry(Part.LineSegment(V(22, 10, 0), V(22, 22, 0)), False)
sketch21.addGeometry(Part.LineSegment(V(22, 22, 0), V(10, 22, 0)), False)
sketch21.addConstraint(Sketcher.Constraint("Coincident", 0, 2, 1, 1))
sketch21.addConstraint(Sketcher.Constraint("Coincident", 1, 2, 2, 1))
sketch21.addConstraint(Sketcher.Constraint("Coincident", 2, 2, 3, 1))
sketch21.addConstraint(Sketcher.Constraint("Coincident", 3, 2, 0, 1))
sketch21.addConstraint(Sketcher.Constraint("Vertical", 0))
sketch21.addConstraint(Sketcher.Constraint("Horizontal", 1))
sketch21.addConstraint(Sketcher.Constraint("Vertical", 2))
sketch21.addConstraint(Sketcher.Constraint("Horizontal", 3))
sketch21.addConstraint(Sketcher.Constraint("Equal", 3, 0))
sketch21.addConstraint(Sketcher.Constraint("DistanceX", 1, 1, 1, 2, Q("0.5 in")))
sketch21.addConstraint(Sketcher.Constraint("DistanceX", -1, 1, 0, 2, Q("9.52 mm")))
sketch21.addConstraint(Sketcher.Constraint("DistanceY", -1, 1, 0, 2, Q("9.52 mm")))
pocket6 = body.newObject("PartDesign::Pocket", "Pocket005")
pocket6.Profile = sketch21
pocket6.Length = Q("29 in")

# Sketch on XY plane
sketch22 = body.newObject("Sketcher::SketchObject", "Sketch021")
sketch22.AttachmentSupport = (doc.getObject("XY_Plane"), [""])
sketch22.MapMode = "FlatFace"
sketch22.addGeometry(Part.Circle(V(16, 16, 0), V(0, 0, 1), 10), False)
sketch22.addConstraint(Sketcher.Constraint("Diameter", 0, Q("0.75 in")))
sketch22.addConstraint(Sketcher.Constraint("DistanceX", -1, 1, 0, 3, Q("0.625 in")))
sketch22.addConstraint(Sketcher.Constraint("DistanceY", -1, 1, 0, 3, Q("0.625 in")))
pocket7 = body.newObject("PartDesign::Pocket", "Pocket006")
pocket7.Profile = sketch22
pocket7.Length = Q("0.25 in")
pocket7.Reversed = True

# Sketch on XZ plane
sketch23 = body.newObject("Sketcher::SketchObject", "Sketch022")
sketch23.AttachmentSupport = (doc.getObject("XZ_Plane"), [""])
sketch23.MapMode = "FlatFace"
sketch23.addGeometry(Part.LineSegment(V(0, 725, 0), V(0, 374, 0)), False)
sketch23.addGeometry(Part.LineSegment(V(0, 374, 0), V(32, 374, 0)), False)
sketch23.addGeometry(Part.LineSegment(V(32, 374, 0), V(32, 725, 0)), False)
sketch23.addGeometry(Part.LineSegment(V(32, 725, 0), V(0, 725, 0)), False)
sketch23.addConstraint(Sketcher.Constraint("Coincident", 0, 2, 1, 1))
sketch23.addConstraint(Sketcher.Constraint("Coincident", 1, 2, 2, 1))
sketch23.addConstraint(Sketcher.Constraint("Coincident", 2, 2, 3, 1))
sketch23.addConstraint(Sketcher.Constraint("Coincident", 3, 2, 0, 1))
sketch23.addConstraint(Sketcher.Constraint("Vertical", 0))
sketch23.addConstraint(Sketcher.Constraint("Horizontal", 1))
sketch23.addConstraint(Sketcher.Constraint("Vertical", 2))
sketch23.addConstraint(Sketcher.Constraint("Horizontal", 3))
sketch23.addConstraint(Sketcher.Constraint("PointOnObject", 0, 2, -2))
sketch23.addConstraint(Sketcher.Constraint("DistanceX", 1, 1, 1, 2, Q("1.25 in")))
sketch23.addConstraint(Sketcher.Constraint("DistanceY", 0, 2, 0, 1, Q("13.85 in")))
sketch23.addConstraint(Sketcher.Constraint("DistanceY", -1, 1, 0, 2, Q("373.69 mm")))
pocket8 = body.newObject("PartDesign::Pocket", "Pocket007")
pocket8.Profile = sketch23
pocket8.Length = Q("3 in")

# Sketch on XY plane
sketch24 = body.newObject("Sketcher::SketchObject", "Sketch023")
sketch24.AttachmentSupport = (doc.getObject("XY_Plane"), [""])
sketch24.MapMode = "FlatFace"
sketch24.AttachmentOffset = App.Placement(V(0, 0, 373.69), App.Rotation())
sketch24.addGeometry(Part.LineSegment(V(0, 32, 0), V(0, 0, 0)), False)
sketch24.addGeometry(Part.LineSegment(V(0, 0, 0), V(32, 0, 0)), False)
sketch24.addGeometry(Part.LineSegment(V(32, 0, 0), V(32, 32, 0)), False)
sketch24.addGeometry(Part.LineSegment(V(32, 32, 0), V(0, 32, 0)), False)
sketch24.addGeometry(Part.LineSegment(V(28, 4, 0), V(4, 4, 0)), False)
sketch24.addGeometry(Part.LineSegment(V(4, 4, 0), V(4, 28, 0)), False)
sketch24.addGeometry(Part.LineSegment(V(4, 28, 0), V(28, 28, 0)), False)
sketch24.addGeometry(Part.LineSegment(V(28, 28, 0), V(28, 4, 0)), False)
sketch24.addConstraint(Sketcher.Constraint("Coincident", 0, 2, 1, 1))
sketch24.addConstraint(Sketcher.Constraint("Coincident", 1, 2, 2, 1))
sketch24.addConstraint(Sketcher.Constraint("Coincident", 2, 2, 3, 1))
sketch24.addConstraint(Sketcher.Constraint("Coincident", 3, 2, 0, 1))
sketch24.addConstraint(Sketcher.Constraint("Coincident", 4, 2, 5, 1))
sketch24.addConstraint(Sketcher.Constraint("Coincident", 5, 2, 6, 1))
sketch24.addConstraint(Sketcher.Constraint("Coincident", 6, 2, 7, 1))
sketch24.addConstraint(Sketcher.Constraint("Coincident", 7, 2, 4, 1))
sketch24.addConstraint(Sketcher.Constraint("Vertical", 0))
sketch24.addConstraint(Sketcher.Constraint("Horizontal", 1))
sketch24.addConstraint(Sketcher.Constraint("Vertical", 2))
sketch24.addConstraint(Sketcher.Constraint("Horizontal", 3))
sketch24.addConstraint(Sketcher.Constraint("Horizontal", 4))
sketch24.addConstraint(Sketcher.Constraint("Vertical", 5))
sketch24.addConstraint(Sketcher.Constraint("Horizontal", 6))
sketch24.addConstraint(Sketcher.Constraint("Vertical", 7))
sketch24.addConstraint(Sketcher.Constraint("Coincident", 0, 2, -1, 1))
sketch24.addConstraint(Sketcher.Constraint("Equal", 3, 0))
sketch24.addConstraint(Sketcher.Constraint("Equal", 6, 5))
sketch24.addConstraint(Sketcher.Constraint("DistanceX", 1, 1, 1, 2, Q("1.25 in")))
sketch24.addConstraint(Sketcher.Constraint("DistanceX", 4, 2, 4, 1, Q("0.95 in")))
sketch24.addConstraint(Sketcher.Constraint("DistanceY", -1, 1, 5, 2, Q("1.1 in")))
sketch24.addConstraint(Sketcher.Constraint("DistanceX", -1, 1, 6, 2, Q("1.1 in")))
pocket9 = body.newObject("PartDesign::Pocket", "Pocket008")
pocket9.Profile = sketch24
pocket9.Length = Q("0.5 in")

doc.recompute()
